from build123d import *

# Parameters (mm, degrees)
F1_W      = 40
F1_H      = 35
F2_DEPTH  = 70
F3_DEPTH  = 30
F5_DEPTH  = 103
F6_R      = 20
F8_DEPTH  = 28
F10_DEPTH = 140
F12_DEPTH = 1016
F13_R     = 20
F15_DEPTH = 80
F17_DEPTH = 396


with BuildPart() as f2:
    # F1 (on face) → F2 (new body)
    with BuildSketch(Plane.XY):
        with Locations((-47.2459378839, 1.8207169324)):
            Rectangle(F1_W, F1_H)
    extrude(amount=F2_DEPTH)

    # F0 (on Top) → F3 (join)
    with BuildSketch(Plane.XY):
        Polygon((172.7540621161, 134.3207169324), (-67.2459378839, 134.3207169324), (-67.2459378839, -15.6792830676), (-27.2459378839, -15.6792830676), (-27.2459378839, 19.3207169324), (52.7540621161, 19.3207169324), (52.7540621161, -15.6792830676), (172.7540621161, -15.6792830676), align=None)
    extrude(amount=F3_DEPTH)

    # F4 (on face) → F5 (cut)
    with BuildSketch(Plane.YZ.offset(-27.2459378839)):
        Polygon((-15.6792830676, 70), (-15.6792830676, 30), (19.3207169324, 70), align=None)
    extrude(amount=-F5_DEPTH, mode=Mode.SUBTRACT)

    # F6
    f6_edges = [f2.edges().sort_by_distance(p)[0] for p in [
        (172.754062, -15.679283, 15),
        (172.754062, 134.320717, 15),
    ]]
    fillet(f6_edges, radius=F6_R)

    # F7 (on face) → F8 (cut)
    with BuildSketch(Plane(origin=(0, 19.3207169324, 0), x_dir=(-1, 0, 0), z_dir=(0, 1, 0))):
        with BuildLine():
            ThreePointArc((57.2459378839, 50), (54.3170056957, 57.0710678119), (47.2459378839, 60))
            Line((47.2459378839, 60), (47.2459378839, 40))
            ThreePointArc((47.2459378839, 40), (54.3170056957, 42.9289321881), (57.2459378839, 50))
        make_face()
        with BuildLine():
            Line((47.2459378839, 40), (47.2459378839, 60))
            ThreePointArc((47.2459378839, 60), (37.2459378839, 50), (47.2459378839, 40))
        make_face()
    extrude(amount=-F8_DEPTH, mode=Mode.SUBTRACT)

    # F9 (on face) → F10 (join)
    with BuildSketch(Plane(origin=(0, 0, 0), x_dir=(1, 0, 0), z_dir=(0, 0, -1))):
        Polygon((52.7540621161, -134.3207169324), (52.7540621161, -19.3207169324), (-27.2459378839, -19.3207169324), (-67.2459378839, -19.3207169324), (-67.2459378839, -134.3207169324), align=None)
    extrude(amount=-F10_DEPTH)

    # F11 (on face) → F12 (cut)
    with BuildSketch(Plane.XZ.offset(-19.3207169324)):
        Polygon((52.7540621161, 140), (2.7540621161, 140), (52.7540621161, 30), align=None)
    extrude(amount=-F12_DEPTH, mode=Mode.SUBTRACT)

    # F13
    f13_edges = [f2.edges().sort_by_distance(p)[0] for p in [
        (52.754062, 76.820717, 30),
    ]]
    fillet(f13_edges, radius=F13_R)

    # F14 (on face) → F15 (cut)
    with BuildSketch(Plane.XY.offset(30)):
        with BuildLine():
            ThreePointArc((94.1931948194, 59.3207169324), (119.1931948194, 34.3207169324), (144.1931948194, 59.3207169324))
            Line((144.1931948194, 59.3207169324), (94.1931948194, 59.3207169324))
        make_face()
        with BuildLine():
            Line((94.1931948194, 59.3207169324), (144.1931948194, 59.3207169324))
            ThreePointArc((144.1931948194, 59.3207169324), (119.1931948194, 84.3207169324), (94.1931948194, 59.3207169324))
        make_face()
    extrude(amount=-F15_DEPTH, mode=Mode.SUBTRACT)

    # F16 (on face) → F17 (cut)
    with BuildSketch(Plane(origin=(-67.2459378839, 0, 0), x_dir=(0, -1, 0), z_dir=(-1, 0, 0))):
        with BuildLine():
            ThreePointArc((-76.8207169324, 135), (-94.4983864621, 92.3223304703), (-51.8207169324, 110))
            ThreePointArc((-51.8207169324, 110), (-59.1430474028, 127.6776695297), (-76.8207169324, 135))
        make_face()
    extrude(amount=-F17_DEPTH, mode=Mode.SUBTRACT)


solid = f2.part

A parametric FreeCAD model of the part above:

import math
import FreeCAD as App
import Part
import Sketcher

V = App.Vector


def edges_at(feature, points):
    """Names of the edges that pass closest to the given points."""
    edges = feature.Shape.Edges
    near = lambda p: min(range(len(edges)), key=lambda i: edges[i].distToShape(Part.Vertex(*p))[0])
    return sorted({f"Edge{near(p) + 1}" for p in points})

doc = App.newDocument("Part")
params = doc.addObject("Spreadsheet::Sheet", "Params")
for row, (alias, value) in enumerate([
    ("sketch1_width", "40 mm"),
    ("sketch1_height", "35 mm"),
    ("pad1_length", "70 mm"),
    ("sketch2_width", "240 mm"),
    ("sketch2_width2", "40 mm"),
    ("sketch2_width3", "80 mm"),
    ("sketch2_height", "150 mm"),
    ("sketch2_height2", "35 mm"),
    ("pad2_length", "30 mm"),
    ("sketch3_width", "35 mm"),
    ("sketch3_height", "40 mm"),
    ("pocket1_length", "103 mm"),
    ("fillet_radius", "20 mm"),
    ("sketch4_radius", "10 mm"),
    ("pocket2_length", "28 mm"),
    ("sketch5_width", "120 mm"),
    ("sketch5_height", "115 mm"),
    ("pad3_length", "140 mm"),
    ("sketch6_width", "50 mm"),
    ("sketch6_height", "110 mm"),
    ("pocket3_length", "1016 mm"),
    ("fillet2_radius", "20 mm"),
    ("sketch7_diameter", "50 mm"),
    ("pocket4_length", "80 mm"),
    ("sketch8_radius", "25 mm"),
    ("pocket5_length", "396 mm"),
], start=1):
    params.set(f"A{row}", alias)
    params.set(f"B{row}", "=" + value)
    params.setAlias(f"B{row}", alias)

body = doc.addObject("PartDesign::Body", "Body")

# Sketch on XY plane
sketch1 = doc.addObject("Sketcher::SketchObject", "Sketch")
body.addObject(sketch1)
sketch1.AttachmentSupport = (doc.XY_Plane, [""])
sketch1.MapMode = "FlatFace"
sketch1.addGeometry([
    Part.LineSegment(V(-67.245938, 19.320717, 0), V(-67.245938, -15.679283, 0)),
    Part.LineSegment(V(-67.245938, -15.679283, 0), V(-27.245938, -15.679283, 0)),
    Part.LineSegment(V(-27.245938, -15.679283, 0), V(-27.245938, 19.320717, 0)),
    Part.LineSegment(V(-27.245938, 19.320717, 0), V(-67.245938, 19.320717, 0)),
], False)
sketch1.addConstraint([
    Sketcher.Constraint("Coincident", 0, 2, 1, 1),
    Sketcher.Constraint("Coincident", 1, 2, 2, 1),
    Sketcher.Constraint("Coincident", 2, 2, 3, 1),
    Sketcher.Constraint("Coincident", 3, 2, 0, 1),
    Sketcher.Constraint("Vertical", 0),
    Sketcher.Constraint("Horizontal", 1),
    Sketcher.Constraint("Vertical", 2),
    Sketcher.Constraint("Horizontal", 3),
    Sketcher.Constraint("DistanceX", 1, 1, 1, 2, 40.0),
    Sketcher.Constraint("DistanceY", 0, 2, 0, 1, 35.0),
    Sketcher.Constraint("DistanceX", 0, 2, -1, 1, 67.245938),
    Sketcher.Constraint("DistanceY", 0, 2, -1, 1, 15.679283),
])
sketch1.setExpression("Constraints[8]", "Params.sketch1_width")
sketch1.setExpression("Constraints[9]", "Params.sketch1_height")
pad1 = doc.addObject("PartDesign::Pad", "Pad")
body.addObject(pad1)
pad1.Profile = sketch1
pad1.setExpression("Length", "Params.pad1_length")

# Sketch on XY plane
sketch2 = doc.addObject("Sketcher::SketchObject", "Sketch001")
body.addObject(sketch2)
sketch2.AttachmentSupport = (doc.XY_Plane, [""])
sketch2.MapMode = "FlatFace"
sketch2.addGeometry([
    Part.LineSegment(V(172.754062, 134.320717, 0), V(-67.245938, 134.320717, 0)),  # 0
    Part.LineSegment(V(-67.245938, 134.320717, 0), V(-67.245938, -15.679283, 0)),  # 1
    Part.LineSegment(V(-67.245938, -15.679283, 0), V(-27.245938, -15.679283, 0)),  # 2
    Part.LineSegment(V(-27.245938, -15.679283, 0), V(-27.245938, 19.320717, 0)),  # 3
    Part.LineSegment(V(-27.245938, 19.320717, 0), V(52.754062, 19.320717, 0)),  # 4
    Part.LineSegment(V(52.754062, 19.320717, 0), V(52.754062, -15.679283, 0)),  # 5
    Part.LineSegment(V(52.754062, -15.679283, 0), V(172.754062, -15.679283, 0)),  # 6
    Part.LineSegment(V(172.754062, -15.679283, 0), V(172.754062, 134.320717, 0)),  # 7
], False)
sketch2.addConstraint([
    Sketcher.Constraint("Coincident", 0, 2, 1, 1),
    Sketcher.Constraint("Coincident", 1, 2, 2, 1),
    Sketcher.Constraint("Coincident", 2, 2, 3, 1),
    Sketcher.Constraint("Coincident", 3, 2, 4, 1),
    Sketcher.Constraint("Coincident", 4, 2, 5, 1),
    Sketcher.Constraint("Coincident", 5, 2, 6, 1),
    Sketcher.Constraint("Coincident", 6, 2, 7, 1),
    Sketcher.Constraint("Coincident", 7, 2, 0, 1),
    Sketcher.Constraint("Horizontal", 0),
    Sketcher.Constraint("Vertical", 1),
    Sketcher.Constraint("Horizontal", 2),
    Sketcher.Constraint("Vertical", 3),
    Sketcher.Constraint("Horizontal", 4),
    Sketcher.Constraint("Vertical", 5),
    Sketcher.Constraint("Horizontal", 6),
    Sketcher.Constraint("Vertical", 7),
    Sketcher.Constraint("Horizontal", 2, 2, 5, 2),
    Sketcher.Constraint("DistanceX", 0, 2, 0, 1, 240.0),
    Sketcher.Constraint("DistanceX", 2, 1, 2, 2, 40.0),
    Sketcher.Constraint("DistanceX", 4, 1, 4, 2, 80.0),
    Sketcher.Constraint("DistanceY", 1, 2, 1, 1, 150.0),
    Sketcher.Constraint("DistanceY", 3, 1, 3, 2, 35.0),
    Sketcher.Constraint("DistanceX", 0, 2, -1, 1, 67.245938),
    Sketcher.Constraint("DistanceY", -1, 1, 0, 2, 134.320717),
])
sketch2.setExpression("Constraints[17]", "Params.sketch2_width")
sketch2.setExpression("Constraints[18]", "Params.sketch2_width2")
sketch2.setExpression("Constraints[19]", "Params.sketch2_width3")
sketch2.setExpression("Constraints[20]", "Params.sketch2_height")
sketch2.setExpression("Constraints[21]", "Params.sketch2_height2")
pad2 = doc.addObject("PartDesign::Pad", "Pad001")
body.addObject(pad2)
pad2.Profile = sketch2
pad2.setExpression("Length", "Params.pad2_length")

# Sketch on YZ plane
sketch3 = doc.addObject("Sketcher::SketchObject", "Sketch002")
body.addObject(sketch3)
sketch3.AttachmentSupport = (doc.YZ_Plane, [""])
sketch3.MapMode = "FlatFace"
sketch3.AttachmentOffset = App.Placement(V(0, 0, -27.245938), App.Rotation())
sketch3.addGeometry([
    Part.LineSegment(V(-15.679283, 70, 0), V(-15.679283, 30, 0)),
    Part.LineSegment(V(-15.679283, 30, 0), V(19.320717, 70, 0)),
    Part.LineSegment(V(19.320717, 70, 0), V(-15.679283, 70, 0)),
], False)
sketch3.addConstraint([
    Sketcher.Constraint("Coincident", 0, 2, 1, 1),
    Sketcher.Constraint("Coincident", 1, 2, 2, 1),
    Sketcher.Constraint("Coincident", 2, 2, 0, 1),
    Sketcher.Constraint("Vertical", 0),
    Sketcher.Constraint("Horizontal", 2),
    Sketcher.Constraint("DistanceX", 2, 2, 2, 1, 35.0),
    Sketcher.Constraint("DistanceY", 0, 2, 0, 1, 40.0),
    Sketcher.Constraint("DistanceY", -1, 1, 0, 2, 30.0),
    Sketcher.Constraint("DistanceX", 0, 2, -1, 1, 15.679283),
])
sketch3.setExpression("Constraints[5]", "Params.sketch3_width")
sketch3.setExpression("Constraints[6]", "Params.sketch3_height")
pocket1 = doc.addObject("PartDesign::Pocket", "Pocket")
body.addObject(pocket1)
pocket1.Profile = sketch3
pocket1.setExpression("Length", "Params.pocket1_length")
doc.recompute()

fillet = doc.addObject("PartDesign::Fillet", "Fillet")
body.addObject(fillet)
fillet.Base = (pocket1, edges_at(pocket1, [(172.754, -15.679, 15), (172.754, 134.321, 15)]))
fillet.setExpression("Radius", "Params.fillet_radius")

# Sketch on XZ plane
sketch4 = doc.addObject("Sketcher::SketchObject", "Sketch003")
body.addObject(sketch4)
sketch4.AttachmentSupport = (doc.XZ_Plane, [""])
sketch4.MapMode = "FlatFace"
sketch4.AttachmentOffset = App.Placement(V(0, 0, -19.320717), App.Rotation())
sketch4.addGeometry([
    Part.ArcOfCircle(Part.Circle(V(-47.245938, 50, 0), V(0, 0, 1), 10), math.radians(90), math.radians(180)),
    Part.ArcOfCircle(Part.Circle(V(-47.245938, 50, 0), V(0, 0, 1), 10), math.radians(-90), math.radians(90)),
    Part.ArcOfCircle(Part.Circle(V(-47.245938, 50, 0), V(0, 0, 1), 10), math.radians(180), math.radians(270)),
], False)
sketch4.addConstraint([
    Sketcher.Constraint("Tangent", 0, 1, 1, 2),
    Sketcher.Constraint("Tangent", 1, 1, 2, 2),
    Sketcher.Constraint("Tangent", 2, 1, 0, 2),
    Sketcher.Constraint("Horizontal", 1, 3, 2, 1),
    Sketcher.Constraint("Vertical", 2, 3, 0, 1),
    Sketcher.Constraint("Vertical", 0, 1, 1, 1),
    Sketcher.Constraint("Radius", 0, 10.0),
    Sketcher.Constraint("DistanceY", -1, 1, 0, 3, 50.0),
    Sketcher.Constraint("DistanceX", 0, 3, -1, 1, 47.245938),
])
sketch4.setExpression("Constraints[6]", "Params.sketch4_radius")
pocket2 = doc.addObject("PartDesign::Pocket", "Pocket001")
body.addObject(pocket2)
pocket2.Profile = sketch4
pocket2.setExpression("Length", "Params.pocket2_length")
pocket2.Reversed = True

# Sketch on XY plane
sketch5 = doc.addObject("Sketcher::SketchObject", "Sketch004")
body.addObject(sketch5)
sketch5.AttachmentSupport = (doc.XY_Plane, [""])
sketch5.MapMode = "FlatFace"
sketch5.addGeometry([
    Part.LineSegment(V(52.754062, 134.320717, 0), V(52.754062, 19.320717, 0)),
    Part.LineSegment(V(52.754062, 19.320717, 0), V(-67.245938, 19.320717, 0)),
    Part.LineSegment(V(-67.245938, 19.320717, 0), V(-67.245938, 134.320717, 0)),
    Part.LineSegment(V(-67.245938, 134.320717, 0), V(52.754062, 134.320717, 0)),
], False)
sketch5.addConstraint([
    Sketcher.Constraint("Coincident", 0, 2, 1, 1),
    Sketcher.Constraint("Coincident", 1, 2, 2, 1),
    Sketcher.Constraint("Coincident", 2, 2, 3, 1),
    Sketcher.Constraint("Coincident", 3, 2, 0, 1),
    Sketcher.Constraint("Vertical", 0),
    Sketcher.Constraint("Horizontal", 1),
    Sketcher.Constraint("Vertical", 2),
    Sketcher.Constraint("Horizontal", 3),
    Sketcher.Constraint("DistanceX", 1, 2, 1, 1, 120.0),
    Sketcher.Constraint("DistanceY", 0, 2, 0, 1, 115.0),
    Sketcher.Constraint("DistanceX", -1, 1, 0, 2, 52.754062),
    Sketcher.Constraint("DistanceY", -1, 1, 0, 2, 19.320717),
])
sketch5.setExpression("Constraints[8]", "Params.sketch5_width")
sketch5.setExpression("Constraints[9]", "Params.sketch5_height")
pad3 = doc.addObject("PartDesign::Pad", "Pad002")
body.addObject(pad3)
pad3.Profile = sketch5
pad3.setExpression("Length", "Params.pad3_length")

# Sketch on XZ plane
sketch6 = doc.addObject("Sketcher::SketchObject", "Sketch005")
body.addObject(sketch6)
sketch6.AttachmentSupport = (doc.XZ_Plane, [""])
sketch6.MapMode = "FlatFace"
sketch6.AttachmentOffset = App.Placement(V(0, 0, -19.320717), App.Rotation())
sketch6.addGeometry([
    Part.LineSegment(V(52.754062, 140, 0), V(2.754062, 140, 0)),
    Part.LineSegment(V(2.754062, 140, 0), V(52.754062, 30, 0)),
    Part.LineSegment(V(52.754062, 30, 0), V(52.754062, 140, 0)),
], False)
sketch6.addConstraint([
    Sketcher.Constraint("Coincident", 0, 2, 1, 1),
    Sketcher.Constraint("Coincident", 1, 2, 2, 1),
    Sketcher.Constraint("Coincident", 2, 2, 0, 1),
    Sketcher.Constraint("Horizontal", 0),
    Sketcher.Constraint("Vertical", 2),
    Sketcher.Constraint("DistanceX", 0, 2, 0, 1, 50.0),
    Sketcher.Constraint("DistanceY", 2, 1, 2, 2, 110.0),
    Sketcher.Constraint("DistanceY", -1, 1, 0, 2, 140.0),
    Sketcher.Constraint("DistanceX", -1, 1, 0, 2, 2.754062),
])
sketch6.setExpression("Constraints[5]", "Params.sketch6_width")
sketch6.setExpression("Constraints[6]", "Params.sketch6_height")
pocket3 = doc.addObject("PartDesign::Pocket", "Pocket002")
body.addObject(pocket3)
pocket3.Profile = sketch6
pocket3.setExpression("Length", "Params.pocket3_length")
doc.recompute()

fillet2 = doc.addObject("PartDesign::Fillet", "Fillet001")
body.addObject(fillet2)
fillet2.Base = (pocket3, edges_at(pocket3, [(52.754, 76.821, 30)]))
fillet2.setExpression("Radius", "Params.fillet2_radius")

# Sketch on XY plane
sketch7 = doc.addObject("Sketcher::SketchObject", "Sketch006")
body.addObject(sketch7)
sketch7.AttachmentSupport = (doc.XY_Plane, [""])
sketch7.MapMode = "FlatFace"
sketch7.AttachmentOffset = App.Placement(V(0, 0, 30), App.Rotation())
sketch7.addGeometry(Part.Circle(V(119.193195, 59.320717, 0), V(0, 0, 1), 25), False)
sketch7.addConstraint([
    Sketcher.Constraint("Diameter", 0, 50.0),
    Sketcher.Constraint("DistanceX", -1, 1, 0, 3, 119.193195),
    Sketcher.Constraint("DistanceY", -1, 1, 0, 3, 59.320717),
])
sketch7.setExpression("Constraints[0]", "Params.sketch7_diameter")
pocket4 = doc.addObject("PartDesign::Pocket", "Pocket003")
body.addObject(pocket4)
pocket4.Profile = sketch7
pocket4.setExpression("Length", "Params.pocket4_length")

# Sketch on YZ plane
sketch8 = doc.addObject("Sketcher::SketchObject", "Sketch007")
body.addObject(sketch8)
sketch8.AttachmentSupport = (doc.YZ_Plane, [""])
sketch8.MapMode = "FlatFace"
sketch8.AttachmentOffset = App.Placement(V(0, 0, -67.245938), App.Rotation())
sketch8.addGeometry([
    Part.ArcOfCircle(Part.Circle(V(76.820717, 110, 0), V(0, 0, 1), 25), math.radians(180), math.radians(450)),
    Part.ArcOfCircle(Part.Circle(V(76.820717, 110, 0), V(0, 0, 1), 25), math.radians(90), math.radians(180)),
], False)
sketch8.addConstraint([
    Sketcher.Constraint("Tangent", 0, 1, 1, 2),
    Sketcher.Constraint("Coincident", 1, 1, 0, 2),
    Sketcher.Constraint("Horizontal", 1, 3, 0, 1),
    Sketcher.Constraint("Vertical", 0, 3, 1, 1),
    Sketcher.Constraint("Radius", 0, 25.0),
    Sketcher.Constraint("DistanceY", -1, 1, 0, 3, 110.0),
    Sketcher.Constraint("DistanceX", -1, 1, 0, 3, 76.820717),
])
sketch8.setExpression("Constraints[4]", "Params.sketch8_radius")
pocket5 = doc.addObject("PartDesign::Pocket", "Pocket004")
body.addObject(pocket5)
pocket5.Profile = sketch8
pocket5.setExpression("Length", "Params.pocket5_length")
pocket5.Reversed = True

doc.recompute()
